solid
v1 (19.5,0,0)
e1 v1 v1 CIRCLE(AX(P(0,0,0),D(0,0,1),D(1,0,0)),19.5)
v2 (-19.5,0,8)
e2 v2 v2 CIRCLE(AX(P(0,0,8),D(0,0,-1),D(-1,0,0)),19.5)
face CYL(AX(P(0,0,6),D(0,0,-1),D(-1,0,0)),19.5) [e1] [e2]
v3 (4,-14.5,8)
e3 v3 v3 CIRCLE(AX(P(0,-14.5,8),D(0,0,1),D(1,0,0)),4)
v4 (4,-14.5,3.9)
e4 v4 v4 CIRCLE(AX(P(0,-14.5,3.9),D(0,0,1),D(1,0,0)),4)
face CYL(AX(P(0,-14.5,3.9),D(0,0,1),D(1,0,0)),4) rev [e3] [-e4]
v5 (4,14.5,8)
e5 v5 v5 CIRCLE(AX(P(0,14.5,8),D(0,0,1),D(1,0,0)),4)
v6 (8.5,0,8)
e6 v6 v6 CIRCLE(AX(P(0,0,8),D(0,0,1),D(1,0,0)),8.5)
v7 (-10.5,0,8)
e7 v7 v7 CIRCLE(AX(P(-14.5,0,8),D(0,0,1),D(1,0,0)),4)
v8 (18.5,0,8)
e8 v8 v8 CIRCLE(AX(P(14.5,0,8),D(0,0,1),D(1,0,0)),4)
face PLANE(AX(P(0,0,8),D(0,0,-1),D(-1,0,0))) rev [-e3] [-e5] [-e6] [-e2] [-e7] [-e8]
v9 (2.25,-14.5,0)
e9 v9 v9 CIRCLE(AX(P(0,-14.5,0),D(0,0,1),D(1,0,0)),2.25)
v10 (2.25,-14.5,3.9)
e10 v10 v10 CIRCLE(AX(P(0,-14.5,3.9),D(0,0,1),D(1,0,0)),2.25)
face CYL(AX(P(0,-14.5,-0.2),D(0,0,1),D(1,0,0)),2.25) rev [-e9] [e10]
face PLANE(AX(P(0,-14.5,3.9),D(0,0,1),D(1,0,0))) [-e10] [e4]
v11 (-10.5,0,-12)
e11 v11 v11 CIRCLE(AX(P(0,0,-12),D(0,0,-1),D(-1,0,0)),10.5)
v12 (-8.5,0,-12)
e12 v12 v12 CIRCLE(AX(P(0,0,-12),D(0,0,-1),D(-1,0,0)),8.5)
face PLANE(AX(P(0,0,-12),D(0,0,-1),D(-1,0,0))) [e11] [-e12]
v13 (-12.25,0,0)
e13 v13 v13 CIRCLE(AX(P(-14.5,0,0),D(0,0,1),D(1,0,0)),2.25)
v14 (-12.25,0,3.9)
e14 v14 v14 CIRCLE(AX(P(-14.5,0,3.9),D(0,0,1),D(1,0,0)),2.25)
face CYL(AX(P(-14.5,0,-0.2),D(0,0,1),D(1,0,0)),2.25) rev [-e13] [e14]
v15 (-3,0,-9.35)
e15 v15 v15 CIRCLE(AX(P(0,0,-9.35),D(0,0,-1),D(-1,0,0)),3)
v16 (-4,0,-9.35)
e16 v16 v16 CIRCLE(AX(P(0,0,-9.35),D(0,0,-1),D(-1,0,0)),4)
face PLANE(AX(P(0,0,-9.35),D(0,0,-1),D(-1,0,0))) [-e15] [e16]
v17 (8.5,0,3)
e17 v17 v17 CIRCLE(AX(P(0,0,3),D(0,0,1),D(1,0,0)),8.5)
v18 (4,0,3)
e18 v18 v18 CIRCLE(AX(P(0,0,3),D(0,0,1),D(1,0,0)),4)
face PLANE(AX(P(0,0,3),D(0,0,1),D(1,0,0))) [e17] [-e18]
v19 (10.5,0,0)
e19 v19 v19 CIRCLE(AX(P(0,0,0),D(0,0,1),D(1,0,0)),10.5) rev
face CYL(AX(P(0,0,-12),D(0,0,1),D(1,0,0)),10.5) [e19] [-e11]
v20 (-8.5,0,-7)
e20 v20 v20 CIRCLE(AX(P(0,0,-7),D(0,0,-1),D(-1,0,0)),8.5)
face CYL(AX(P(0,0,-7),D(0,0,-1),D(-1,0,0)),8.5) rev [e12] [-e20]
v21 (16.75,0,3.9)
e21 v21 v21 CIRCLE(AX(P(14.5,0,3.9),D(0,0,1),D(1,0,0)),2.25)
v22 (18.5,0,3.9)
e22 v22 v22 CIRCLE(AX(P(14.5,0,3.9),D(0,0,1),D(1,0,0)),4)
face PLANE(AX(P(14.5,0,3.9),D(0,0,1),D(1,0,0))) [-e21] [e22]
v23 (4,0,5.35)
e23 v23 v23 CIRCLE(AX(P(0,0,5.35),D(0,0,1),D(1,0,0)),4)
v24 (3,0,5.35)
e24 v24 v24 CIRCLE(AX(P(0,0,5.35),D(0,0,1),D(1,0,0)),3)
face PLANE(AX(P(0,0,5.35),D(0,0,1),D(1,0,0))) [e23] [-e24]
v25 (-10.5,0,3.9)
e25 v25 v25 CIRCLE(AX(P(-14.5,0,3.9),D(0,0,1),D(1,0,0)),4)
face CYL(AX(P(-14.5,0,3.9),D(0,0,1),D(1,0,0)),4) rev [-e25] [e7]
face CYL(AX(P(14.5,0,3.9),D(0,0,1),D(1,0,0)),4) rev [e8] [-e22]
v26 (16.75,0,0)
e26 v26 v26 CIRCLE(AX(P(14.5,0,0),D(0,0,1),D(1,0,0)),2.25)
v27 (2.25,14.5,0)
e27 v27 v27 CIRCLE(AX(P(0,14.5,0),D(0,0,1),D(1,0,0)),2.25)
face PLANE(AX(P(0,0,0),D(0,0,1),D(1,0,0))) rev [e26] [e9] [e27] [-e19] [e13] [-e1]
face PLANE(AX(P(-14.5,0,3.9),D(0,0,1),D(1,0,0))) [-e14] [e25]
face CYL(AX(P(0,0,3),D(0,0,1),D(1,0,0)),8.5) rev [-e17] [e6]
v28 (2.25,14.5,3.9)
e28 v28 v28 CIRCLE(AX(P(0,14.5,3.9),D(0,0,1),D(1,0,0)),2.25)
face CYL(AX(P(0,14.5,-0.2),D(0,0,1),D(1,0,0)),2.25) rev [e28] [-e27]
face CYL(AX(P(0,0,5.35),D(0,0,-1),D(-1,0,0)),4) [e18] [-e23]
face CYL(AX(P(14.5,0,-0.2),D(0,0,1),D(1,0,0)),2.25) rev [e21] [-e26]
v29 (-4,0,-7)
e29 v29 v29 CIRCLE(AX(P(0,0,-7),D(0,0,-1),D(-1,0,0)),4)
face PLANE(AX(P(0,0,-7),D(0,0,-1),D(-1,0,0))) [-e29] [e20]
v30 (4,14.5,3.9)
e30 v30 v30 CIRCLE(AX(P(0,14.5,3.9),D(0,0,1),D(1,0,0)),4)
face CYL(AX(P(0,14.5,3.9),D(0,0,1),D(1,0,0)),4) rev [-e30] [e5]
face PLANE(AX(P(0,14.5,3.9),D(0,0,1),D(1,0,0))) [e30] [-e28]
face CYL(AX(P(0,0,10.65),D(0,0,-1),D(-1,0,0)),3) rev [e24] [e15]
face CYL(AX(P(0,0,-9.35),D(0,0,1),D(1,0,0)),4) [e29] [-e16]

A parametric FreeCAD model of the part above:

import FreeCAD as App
import Part
import Sketcher
from FreeCAD import Vector
Q = App.Units.Quantity

doc = App.newDocument("Part")
body = doc.addObject("PartDesign::Body", "Body")

# Sketch on XY plane
sketch1 = body.newObject("Sketcher::SketchObject", "Sketch")
sketch1.AttachmentSupport = (doc.getObject("XY_Plane"), [""])
sketch1.MapMode = "FlatFace"
sketch1.addGeometry(Part.Circle(Vector(0, 0, 0), Vector(0, 0, 1), 20), False)
sketch1.addConstraint(Sketcher.Constraint("Coincident", 0, 3, -1, 1))
sketch1.addConstraint(Sketcher.Constraint("Diameter", 0, Q("39 mm")))
pad1 = body.newObject("PartDesign::Pad", "Pad")
pad1.Profile = sketch1
pad1.Length = 6

# Sketch on XY plane
sketch2 = body.newObject("Sketcher::SketchObject", "Sketch001")
sketch2.AttachmentSupport = (doc.getObject("XY_Plane"), [""])
sketch2.MapMode = "FlatFace"
sketch2.addGeometry(Part.Circle(Vector(0, 0, 0), Vector(0, 0, 1), 10), False)
sketch2.addConstraint(Sketcher.Constraint("Coincident", 0, 3, -1, 1))
sketch2.addConstraint(Sketcher.Constraint("Diameter", 0, Q("19 mm")))
pad2 = body.newObject("PartDesign::Pad", "Pad001")
pad2.Profile = sketch2
pad2.Length = 3
pad2.Reversed = True

# Sketch on XY plane
sketch3 = body.newObject("Sketcher::SketchObject", "Sketch002")
sketch3.AttachmentSupport = (doc.getObject("XY_Plane"), [""])
sketch3.MapMode = "FlatFace"
sketch3.AttachmentOffset = App.Placement(Vector(0, 0, -3), App.Rotation())
sketch3.addGeometry(Part.Circle(Vector(0, 0, 0), Vector(0, 0, 1), 5), False)
sketch3.addConstraint(Sketcher.Constraint("Coincident", 0, 3, -1, 1))
sketch3.addConstraint(Sketcher.Constraint("Diameter", 0, Q("10 mm")))
pocket1 = body.newObject("PartDesign::Pocket", "Pocket")
pocket1.Profile = sketch3
pocket1.Length = 50
pocket1.Reversed = True

# Sketch on XY plane
sketch4 = body.newObject("Sketcher::SketchObject", "Sketch003")
sketch4.AttachmentSupport = (doc.getObject("XY_Plane"), [""])
sketch4.MapMode = "FlatFace"
sketch4.AttachmentOffset = App.Placement(Vector(0, 0, 6), App.Rotation())
sketch4.addGeometry(Part.Circle(Vector(0, 14.5, 0), Vector(0, 0, 1), 4), False)
sketch4.addGeometry(Part.Circle(Vector(14.5, 0, 0), Vector(0, 0, 1), 4), False)
sketch4.addGeometry(Part.Circle(Vector(0, -14.5, 0), Vector(0, 0, 1), 4), False)
sketch4.addGeometry(Part.Circle(Vector(-14.5, 0, 0), Vector(0, 0, 1), 4), False)
sketch4.addConstraint(Sketcher.Constraint("Equal", 0, 1))
sketch4.addConstraint(Sketcher.Constraint("Equal", 1, 2))
sketch4.addConstraint(Sketcher.Constraint("Equal", 2, 3))
sketch4.addConstraint(Sketcher.Constraint("Symmetric", 0, 3, 2, 3, -1, 1))
sketch4.addConstraint(Sketcher.Constraint("Symmetric", 1, 3, 3, 3, -1, 1))
sketch4.addConstraint(Sketcher.Constraint("PointOnObject", 0, 3, -2))
sketch4.addConstraint(Sketcher.Constraint("PointOnObject", 1, 3, -1))
sketch4.addConstraint(Sketcher.Constraint("Diameter", 0, Q("8 mm")))
sketch4.addConstraint(Sketcher.Constraint("DistanceY", 2, 3, 0, 3, Q("29 mm")))
sketch4.addConstraint(Sketcher.Constraint("DistanceX", 3, 3, 1, 3, Q("29 mm")))
pocket2 = body.newObject("PartDesign::Pocket", "Pocket001")
pocket2.Profile = sketch4
pocket2.Length = 4.4

# Sketch on XY plane
sketch5 = body.newObject("Sketcher::SketchObject", "Sketch004")
sketch5.AttachmentSupport = (doc.getObject("XY_Plane"), [""])
sketch5.MapMode = "FlatFace"
sketch5.AttachmentOffset = App.Placement(Vector(0, 0, 1.6), App.Rotation())
sketch5.addGeometry(Part.Circle(Vector(-14.5, 0, 0), Vector(0, 0, 1), 2.2), False)
sketch5.addConstraint(Sketcher.Constraint("PointOnObject", 0, 3, -1))
sketch5.addConstraint(Sketcher.Constraint("Diameter", 0, Q("4.5 mm")))
sketch5.addConstraint(Sketcher.Constraint("DistanceX", 0, 3, -1, 1, Q("14.5 mm")))
pocket3 = body.newObject("PartDesign::Pocket", "Pocket002")
pocket3.Profile = sketch5
pocket3.Length = 4.4

# Sketch on XY plane
sketch6 = body.newObject("Sketcher::SketchObject", "Sketch005")
sketch6.AttachmentSupport = (doc.getObject("XY_Plane"), [""])
sketch6.MapMode = "FlatFace"
sketch6.AttachmentOffset = App.Placement(Vector(0, 0, 1.6), App.Rotation())
sketch6.addGeometry(Part.Circle(Vector(0, 14.5, 0), Vector(0, 0, 1), 2.2), False)
sketch6.addConstraint(Sketcher.Constraint("PointOnObject", 0, 3, -2))
sketch6.addConstraint(Sketcher.Constraint("Diameter", 0, Q("4.5 mm")))
sketch6.addConstraint(Sketcher.Constraint("DistanceY", -1, 1, 0, 3, Q("14.5 mm")))
pocket4 = body.newObject("PartDesign::Pocket", "Pocket003")
pocket4.Profile = sketch6
pocket4.Length = 4.4

# Sketch on XY plane
sketch7 = body.newObject("Sketcher::SketchObject", "Sketch006")
sketch7.AttachmentSupport = (doc.getObject("XY_Plane"), [""])
sketch7.MapMode = "FlatFace"
sketch7.AttachmentOffset = App.Placement(Vector(0, 0, 1.6), App.Rotation())
sketch7.addGeometry(Part.Circle(Vector(14.5, 0, 0), Vector(0, 0, 1), 2.2), False)
sketch7.addGeometry(Part.Circle(Vector(0, -14.5, 0), Vector(0, 0, 1), 2.2), False)
sketch7.addConstraint(Sketcher.Constraint("Equal", 0, 1))
sketch7.addConstraint(Sketcher.Constraint("PointOnObject", 0, 3, -1))
sketch7.addConstraint(Sketcher.Constraint("PointOnObject", 1, 3, -2))
sketch7.addConstraint(Sketcher.Constraint("Diameter", 0, Q("4.5 mm")))
sketch7.addConstraint(Sketcher.Constraint("DistanceX", -1, 1, 0, 3, Q("14.5 mm")))
sketch7.addConstraint(Sketcher.Constraint("DistanceY", 1, 3, -1, 1, Q("14.5 mm")))
pocket5 = body.newObject("PartDesign::Pocket", "Pocket004")
pocket5.Profile = sketch7
pocket5.Length = 4.4

# Sketch on XY plane
sketch8 = body.newObject("Sketcher::SketchObject", "Sketch007")
sketch8.AttachmentSupport = (doc.getObject("XY_Plane"), [""])
sketch8.MapMode = "FlatFace"
sketch8.addGeometry(Part.Circle(Vector(0, 0, 0), Vector(0, 0, 1), 10), False)
sketch8.addConstraint(Sketcher.Constraint("Coincident", 0, 3, -1, 1))
sketch8.addConstraint(Sketcher.Constraint("Diameter", 0, Q("21 mm")))
pad3 = body.newObject("PartDesign::Pad", "Pad002")
pad3.Profile = sketch8
pad3.Length = 12
pad3.Reversed = True

# Sketch on XY plane
sketch9 = body.newObject("Sketcher::SketchObject", "Sketch008")
sketch9.AttachmentSupport = (doc.getObject("XY_Plane"), [""])
sketch9.MapMode = "FlatFace"
sketch9.AttachmentOffset = App.Placement(Vector(0, 0, -12), App.Rotation())
sketch9.addGeometry(Part.Circle(Vector(0, 0, 0), Vector(0, 0, 1), 8), False)
sketch9.addConstraint(Sketcher.Constraint("Coincident", 0, 3, -1, 1))
sketch9.addConstraint(Sketcher.Constraint("Diameter", 0, Q("17 mm")))
pocket6 = body.newObject("PartDesign::Pocket", "Pocket005")
pocket6.Profile = sketch9
pocket6.Length = 20
pocket6.Reversed = True

# Sketch on XY plane
sketch10 = body.newObject("Sketcher::SketchObject", "Sketch009")
sketch10.AttachmentSupport = (doc.getObject("XY_Plane"), [""])
sketch10.MapMode = "FlatFace"
sketch10.addGeometry(Part.Circle(Vector(0, 0, 0), Vector(0, 0, 1), 20), False)
sketch10.addConstraint(Sketcher.Constraint("Coincident", 0, 3, -1, 1))
sketch10.addConstraint(Sketcher.Constraint("Diameter", 0, Q("39 mm")))
pad4 = body.newObject("PartDesign::Pad", "Pad003")
pad4.Profile = sketch10
pad4.Length = 8

# Sketch on XY plane
sketch11 = body.newObject("Sketcher::SketchObject", "Sketch010")
sketch11.AttachmentSupport = (doc.getObject("XY_Plane"), [""])
sketch11.MapMode = "FlatFace"
sketch11.addGeometry(Part.Circle(Vector(0, 0, 0), Vector(0, 0, 1), 8), False)
sketch11.addConstraint(Sketcher.Constraint("Coincident", 0, 3, -1, 1))
sketch11.addConstraint(Sketcher.Constraint("Diameter", 0, Q("17 mm")))
pocket7 = body.newObject("PartDesign::Pocket", "Pocket006")
pocket7.Profile = sketch11
pocket7.Length = 8
pocket7.Reversed = True

# Sketch on XY plane
sketch12 = body.newObject("Sketcher::SketchObject", "Sketch011")
sketch12.AttachmentSupport = (doc.getObject("XY_Plane"), [""])
sketch12.MapMode = "FlatFace"
sketch12.AttachmentOffset = App.Placement(Vector(0, 0, 8), App.Rotation())
sketch12.addGeometry(Part.Circle(Vector(0, 14.5, 0), Vector(0, 0, 1), 4), False)
sketch12.addGeometry(Part.Circle(Vector(14.5, 0, 0), Vector(0, 0, 1), 4), False)
sketch12.addGeometry(Part.Circle(Vector(0, -14.5, 0), Vector(0, 0, 1), 4), False)
sketch12.addGeometry(Part.Circle(Vector(-14.5, 0, 0), Vector(0, 0, 1), 4), False)
sketch12.addConstraint(Sketcher.Constraint("Equal", 0, 1))
sketch12.addConstraint(Sketcher.Constraint("Equal", 1, 2))
sketch12.addConstraint(Sketcher.Constraint("Equal", 2, 3))
sketch12.addConstraint(Sketcher.Constraint("Symmetric", 0, 3, 2, 3, -1, 1))
sketch12.addConstraint(Sketcher.Constraint("Symmetric", 1, 3, 3, 3, -1, 1))
sketch12.addConstraint(Sketcher.Constraint("PointOnObject", 0, 3, -2))
sketch12.addConstraint(Sketcher.Constraint("PointOnObject", 1, 3, -1))
sketch12.addConstraint(Sketcher.Constraint("Diameter", 0, Q("8 mm")))
sketch12.addConstraint(Sketcher.Constraint("DistanceY", 2, 3, 0, 3, Q("29 mm")))
sketch12.addConstraint(Sketcher.Constraint("DistanceX", 3, 3, 1, 3, Q("29 mm")))
pocket8 = body.newObject("PartDesign::Pocket", "Pocket007")
pocket8.Profile = sketch12
pocket8.Length = 4.1

# Sketch on XY plane
sketch13 = body.newObject("Sketcher::SketchObject", "Sketch012")
sketch13.AttachmentSupport = (doc.getObject("XY_Plane"), [""])
sketch13.MapMode = "FlatFace"
sketch13.AttachmentOffset = App.Placement(Vector(0, 0, 3.9), App.Rotation())
sketch13.addGeometry(Part.Circle(Vector(0, 14.5, 0), Vector(0, 0, 1), 2.2), False)
sketch13.addGeometry(Part.Circle(Vector(14.5, 0, 0), Vector(0, 0, 1), 2.2), False)
sketch13.addGeometry(Part.Circle(Vector(0, -14.5, 0), Vector(0, 0, 1), 2.2), False)
sketch13.addGeometry(Part.Circle(Vector(-14.5, 0, 0), Vector(0, 0, 1), 2.2), False)
sketch13.addConstraint(Sketcher.Constraint("Equal", 0, 1))
sketch13.addConstraint(Sketcher.Constraint("Equal", 1, 2))
sketch13.addConstraint(Sketcher.Constraint("Equal", 2, 3))
sketch13.addConstraint(Sketcher.Constraint("Symmetric", 0, 3, 2, 3, -1, 1))
sketch13.addConstraint(Sketcher.Constraint("Symmetric", 1, 3, 3, 3, -1, 1))
sketch13.addConstraint(Sketcher.Constraint("PointOnObject", 0, 3, -2))
sketch13.addConstraint(Sketcher.Constraint("PointOnObject", 1, 3, -1))
sketch13.addConstraint(Sketcher.Constraint("Diameter", 0, Q("4.5 mm")))
sketch13.addConstraint(Sketcher.Constraint("DistanceY", 2, 3, 0, 3, Q("29 mm")))
sketch13.addConstraint(Sketcher.Constraint("DistanceX", 3, 3, 1, 3, Q("29 mm")))
pocket9 = body.newObject("PartDesign::Pocket", "Pocket008")
pocket9.Profile = sketch13
pocket9.Length = 4.1

# Sketch on XY plane
sketch14 = body.newObject("Sketcher::SketchObject", "Sketch013")
sketch14.AttachmentSupport = (doc.getObject("XY_Plane"), [""])
sketch14.MapMode = "FlatFace"
sketch14.AttachmentOffset = App.Placement(Vector(0, 0, -12), App.Rotation())
sketch14.addGeometry(Part.Circle(Vector(0, 0, 0), Vector(0, 0, 1), 8), False)
sketch14.addConstraint(Sketcher.Constraint("Coincident", 0, 3, -1, 1))
sketch14.addConstraint(Sketcher.Constraint("Diameter", 0, Q("17 mm")))
pad5 = body.newObject("PartDesign::Pad", "Pad004")
pad5.Profile = sketch14
pad5.Length = 20

# Sketch on XY plane
sketch15 = body.newObject("Sketcher::SketchObject", "Sketch014")
sketch15.AttachmentSupport = (doc.getObject("XY_Plane"), [""])
sketch15.MapMode = "FlatFace"
sketch15.AttachmentOffset = App.Placement(Vector(0, 0, -12), App.Rotation())
sketch15.addGeometry(Part.Circle(Vector(0, 0, 0), Vector(0, 0, 1), 8), False)
sketch15.addConstraint(Sketcher.Constraint("Coincident", 0, 3, -1, 1))
sketch15.addConstraint(Sketcher.Constraint("Diameter", 0, Q("17 mm")))
pocket10 = body.newObject("PartDesign::Pocket", "Pocket009")
pocket10.Profile = sketch15
pocket10.Length = 5
pocket10.Reversed = True

# Sketch on XY plane
sketch16 = body.newObject("Sketcher::SketchObject", "Sketch015")
sketch16.AttachmentSupport = (doc.getObject("XY_Plane"), [""])
sketch16.MapMode = "FlatFace"
sketch16.AttachmentOffset = App.Placement(Vector(0, 0, -7), App.Rotation())
sketch16.addGeometry(Part.Circle(Vector(0, 0, 0), Vector(0, 0, 1), 4), False)
sketch16.addConstraint(Sketcher.Constraint("Coincident", 0, 3, -1, 1))
sketch16.addConstraint(Sketcher.Constraint("Diameter", 0, Q("8 mm")))
pad6 = body.newObject("PartDesign::Pad", "Pad005")
pad6.Profile = sketch16
pad6.Length = 2.35
pad6.Reversed = True

# Sketch on XY plane
sketch17 = body.newObject("Sketcher::SketchObject", "Sketch016")
sketch17.AttachmentSupport = (doc.getObject("XY_Plane"), [""])
sketch17.MapMode = "FlatFace"
sketch17.AttachmentOffset = App.Placement(Vector(0, 0, -9.35), App.Rotation())
sketch17.addGeometry(Part.Circle(Vector(0, 0, 0), Vector(0, 0, 1), 3), False)
sketch17.addConstraint(Sketcher.Constraint("Coincident", 0, 3, -1, 1))
sketch17.addConstraint(Sketcher.Constraint("Diameter", 0, Q("6 mm")))
pocket11 = body.newObject("PartDesign::Pocket", "Pocket010")
pocket11.Profile = sketch17
pocket11.Length = 20
pocket11.Reversed = True

# Sketch on XY plane
sketch18 = body.newObject("Sketcher::SketchObject", "Sketch017")
sketch18.AttachmentSupport = (doc.getObject("XY_Plane"), [""])
sketch18.MapMode = "FlatFace"
sketch18.AttachmentOffset = App.Placement(Vector(0, 0, 3), App.Rotation())
sketch18.addGeometry(Part.Circle(Vector(0, 0, 0), Vector(0, 0, 1), 8), False)
sketch18.addConstraint(Sketcher.Constraint("Coincident", 0, 3, -1, 1))
sketch18.addConstraint(Sketcher.Constraint("Diameter", 0, Q("17 mm")))
pocket12 = body.newObject("PartDesign::Pocket", "Pocket011")
pocket12.Profile = sketch18
pocket12.Length = 5
pocket12.Reversed = True

# Sketch on XY plane
sketch19 = body.newObject("Sketcher::SketchObject", "Sketch018")
sketch19.AttachmentSupport = (doc.getObject("XY_Plane"), [""])
sketch19.MapMode = "FlatFace"
sketch19.AttachmentOffset = App.Placement(Vector(0, 0, 5.35), App.Rotation())
sketch19.addGeometry(Part.Circle(Vector(0, 0, 0), Vector(0, 0, 1), 4), False)
sketch19.addConstraint(Sketcher.Constraint("Coincident", 0, 3, -1, 1))
sketch19.addConstraint(Sketcher.Constraint("Diameter", 0, Q("8 mm")))
pad7 = body.newObject("PartDesign::Pad", "Pad006")
pad7.Profile = sketch19
pad7.Length = 2.35
pad7.Reversed = True

# Sketch on XY plane
sketch20 = body.newObject("Sketcher::SketchObject", "Sketch019")
sketch20.AttachmentSupport = (doc.getObject("XY_Plane"), [""])
sketch20.MapMode = "FlatFace"
sketch20.AttachmentOffset = App.Placement(Vector(0, 0, 3), App.Rotation())
sketch20.addGeometry(Part.Circle(Vector(0, 0, 0), Vector(0, 0, 1), 3), False)
sketch20.addConstraint(Sketcher.Constraint("Coincident", 0, 3, -1, 1))
sketch20.addConstraint(Sketcher.Constraint("Diameter", 0, Q("6 mm")))
pocket13 = body.newObject("PartDesign::Pocket", "Pocket012")
pocket13.Profile = sketch20
pocket13.Length = 2.35
pocket13.Reversed = True

doc.recompute()
